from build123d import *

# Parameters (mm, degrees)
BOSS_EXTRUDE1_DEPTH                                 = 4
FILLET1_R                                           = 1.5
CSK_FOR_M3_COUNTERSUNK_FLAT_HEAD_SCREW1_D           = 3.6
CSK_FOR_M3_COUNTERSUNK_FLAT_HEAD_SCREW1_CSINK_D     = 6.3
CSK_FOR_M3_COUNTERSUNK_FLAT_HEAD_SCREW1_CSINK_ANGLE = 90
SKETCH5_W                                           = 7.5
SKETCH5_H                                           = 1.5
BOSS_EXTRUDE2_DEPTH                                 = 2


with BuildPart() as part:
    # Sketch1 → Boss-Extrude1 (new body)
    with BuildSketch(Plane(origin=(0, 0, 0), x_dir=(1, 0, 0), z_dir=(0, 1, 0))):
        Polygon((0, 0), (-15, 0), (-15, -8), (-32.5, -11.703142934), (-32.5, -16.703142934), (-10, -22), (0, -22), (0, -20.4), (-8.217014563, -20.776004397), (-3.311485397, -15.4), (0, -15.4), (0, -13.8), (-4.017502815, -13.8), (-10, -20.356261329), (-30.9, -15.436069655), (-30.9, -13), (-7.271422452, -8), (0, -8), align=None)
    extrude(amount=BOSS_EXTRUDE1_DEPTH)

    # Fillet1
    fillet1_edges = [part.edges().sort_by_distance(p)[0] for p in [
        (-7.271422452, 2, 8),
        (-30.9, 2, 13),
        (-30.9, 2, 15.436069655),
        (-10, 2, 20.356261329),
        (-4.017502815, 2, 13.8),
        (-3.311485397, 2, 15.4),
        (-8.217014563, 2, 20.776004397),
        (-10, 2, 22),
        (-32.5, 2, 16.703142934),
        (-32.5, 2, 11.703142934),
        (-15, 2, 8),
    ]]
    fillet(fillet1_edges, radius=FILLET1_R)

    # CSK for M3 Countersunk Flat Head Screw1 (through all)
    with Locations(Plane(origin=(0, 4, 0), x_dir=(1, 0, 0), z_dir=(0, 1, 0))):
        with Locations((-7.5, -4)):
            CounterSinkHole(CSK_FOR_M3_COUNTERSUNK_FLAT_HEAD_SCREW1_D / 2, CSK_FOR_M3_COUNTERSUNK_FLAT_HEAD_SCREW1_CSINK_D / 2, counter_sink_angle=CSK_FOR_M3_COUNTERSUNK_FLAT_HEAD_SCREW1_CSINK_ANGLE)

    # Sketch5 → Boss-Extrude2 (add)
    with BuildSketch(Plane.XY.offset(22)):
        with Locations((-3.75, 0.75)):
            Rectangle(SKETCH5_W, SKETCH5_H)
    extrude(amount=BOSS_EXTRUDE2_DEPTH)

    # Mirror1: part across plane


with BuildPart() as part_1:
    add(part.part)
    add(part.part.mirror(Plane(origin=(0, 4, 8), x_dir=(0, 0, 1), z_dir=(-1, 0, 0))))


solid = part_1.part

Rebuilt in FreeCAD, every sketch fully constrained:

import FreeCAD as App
import Part
import Sketcher
Q = App.Units.Quantity


def edges_at(feature, points):
    """Names of the edges that pass closest to the given points."""
    edges = feature.Shape.Edges
    near = lambda p: min(range(len(edges)), key=lambda i: edges[i].distToShape(Part.Vertex(*p))[0])
    return sorted({f"Edge{near(p) + 1}" for p in points})


def add_polygon(sketch, points):
    """Adds a closed chain of lines whose ends are joined by coincident constraints."""
    first, n = sketch.GeometryCount, len(points)
    for a, b in zip(points, points[1:] + points[:1]):
        sketch.addGeometry(Part.LineSegment(App.Vector(*a, 0), App.Vector(*b, 0)), False)
    for i in range(n):
        sketch.addConstraint(Sketcher.Constraint("Coincident", first + i, 2, first + (i + 1) % n, 1))

doc = App.newDocument("Part")
params = doc.addObject("Spreadsheet::Sheet", "Params")
for row, (alias, value) in enumerate([
    ("sketch1_width", "15 mm"),
    ("sketch1_width2", "10 mm"),
    ("sketch1_height", "8 mm"),
    ("sketch1_height2", "5 mm"),
    ("sketch1_height3", "1.6 mm"),
    ("pad1_length", "4 mm"),
    ("fillet_radius", "1.5 mm"),
    ("sketch2_diameter", "3.6 mm"),
    ("hole_diameter", "3.6 mm"),
    ("hole_csink_diameter", "6.3 mm"),
    ("sketch3_width", "7.5 mm"),
    ("sketch3_height", "1.5 mm"),
    ("pad2_length", "2 mm"),
], start=1):
    params.set(f"A{row}", alias)
    params.set(f"B{row}", "=" + value)
    params.setAlias(f"B{row}", alias)

body = doc.addObject("PartDesign::Body", "Body")

# Sketch on XZ plane
sketch1 = doc.addObject("Sketcher::SketchObject", "Sketch")
body.addObject(sketch1)
sketch1.AttachmentSupport = (doc.XZ_Plane, [""])
sketch1.MapMode = "FlatFace"
add_polygon(sketch1, [(0, 0), (-15, 0), (-15, 8), (-32.5, 11.703143), (-32.5, 16.703143), (-10, 22), (0, 22), (0, 20.4), (-8.217015, 20.776004), (-3.311485, 15.4), (0, 15.4), (0, 13.8), (-4.017503, 13.8), (-10, 20.356261), (-30.9, 15.43607), (-30.9, 13), (-7.271422, 8), (0, 8)])  # lines 0-17
sketch1.addConstraint([
    Sketcher.Constraint("Horizontal", 0),
    Sketcher.Constraint("Vertical", 1),
    Sketcher.Constraint("Vertical", 3),
    Sketcher.Constraint("Horizontal", 5),
    Sketcher.Constraint("Vertical", 6),
    Sketcher.Constraint("Horizontal", 9),
    Sketcher.Constraint("Vertical", 10),
    Sketcher.Constraint("Horizontal", 11),
    Sketcher.Constraint("Vertical", 14),
    Sketcher.Constraint("Horizontal", 16),
    Sketcher.Constraint("Vertical", 17),
    Sketcher.Constraint("Coincident", 17, 2, -1, 1),
    Sketcher.Constraint("PointOnObject", 5, 2, -2),
    Sketcher.Constraint("PointOnObject", 9, 2, -2),
    Sketcher.Constraint("Parallel", 8, 12),
    Sketcher.Constraint("Parallel", 4, 13),
    Sketcher.Constraint("Parallel", 2, 15),
    Sketcher.Constraint("Horizontal", 1, 2, 15, 2),
    Sketcher.Constraint("Vertical", 4, 2, 12, 2),
    Sketcher.Constraint("Equal", 6, 10),
    Sketcher.Constraint("DistanceX", 0, 2, 0, 1, 15.0),
    Sketcher.Constraint("DistanceX", 5, 1, 5, 2, 10.0),
    Sketcher.Constraint("DistanceY", 1, 1, 1, 2, 8.0),
    Sketcher.Constraint("DistanceY", 3, 1, 3, 2, 5.0),
    Sketcher.Constraint("DistanceY", 6, 2, 6, 1, 1.6),
    Sketcher.Constraint("DistanceY", -1, 1, 4, 2, 22.0),
    Sketcher.Constraint("DistanceY", -1, 1, 14, 2, 13.0),
    Sketcher.Constraint("DistanceY", 8, 2, 6, 2, 5.0),
    Sketcher.Constraint("DistanceX", 2, 2, -1, 1, 32.5),
    Sketcher.Constraint("DistanceX", 13, 2, -1, 1, 30.9),
    Sketcher.Constraint("Angle", 7, Q("177.380016 deg")),
    Sketcher.Constraint("Angle", 8, Q("-47.619984 deg")),
    Sketcher.Constraint("DistanceY", 14, 2, 14, 1, 2.43607),
    Sketcher.Constraint("Distance", 8, 7.27775),
    Sketcher.Constraint("Distance", 12, 8.875519),
])
sketch1.setExpression("Constraints[38]", "Params.sketch1_width")
sketch1.setExpression("Constraints[39]", "Params.sketch1_width2")
sketch1.setExpression("Constraints[40]", "Params.sketch1_height")
sketch1.setExpression("Constraints[41]", "Params.sketch1_height2")
sketch1.setExpression("Constraints[42]", "Params.sketch1_height3")
pad1 = doc.addObject("PartDesign::Pad", "Pad")
body.addObject(pad1)
pad1.Profile = sketch1
pad1.setExpression("Length", "Params.pad1_length")
pad1.Reversed = True
doc.recompute()

fillet = doc.addObject("PartDesign::Fillet", "Fillet")
body.addObject(fillet)
fillet.Base = (pad1, edges_at(pad1, [
    (-7.271, 2, 8),
    (-30.9, 2, 13),
    (-30.9, 2, 15.436),
    (-10, 2, 20.356),
    (-4.018, 2, 13.8),
    (-3.311, 2, 15.4),
    (-8.217, 2, 20.776),
    (-10, 2, 22),
    (-32.5, 2, 16.703),
    (-32.5, 2, 11.703),
    (-15, 2, 8),
]))
fillet.setExpression("Radius", "Params.fillet_radius")

# Sketch on XZ plane
sketch2 = doc.addObject("Sketcher::SketchObject", "Sketch001")
body.addObject(sketch2)
sketch2.AttachmentSupport = (doc.XZ_Plane, [""])
sketch2.MapMode = "FlatFace"
sketch2.AttachmentOffset = App.Placement(App.Vector(0, 0, -4), App.Rotation())
sketch2.addGeometry(Part.Circle(App.Vector(-7.5, 4, 0), App.Vector(0, 0, 1), 1.8), False)
sketch2.addConstraint([
    Sketcher.Constraint("Diameter", 0, 3.6),
    Sketcher.Constraint("DistanceY", -1, 1, 0, 3, 4.0),
    Sketcher.Constraint("DistanceX", 0, 3, -1, 1, 7.5),
])
sketch2.setExpression("Constraints[0]", "Params.sketch2_diameter")
doc.recompute()
hole = doc.addObject("PartDesign::Hole", "Hole")
body.addObject(hole)
hole.Profile = sketch2
hole.ThreadType = "None"
hole.setExpression("Diameter", "Params.hole_diameter")
hole.DepthType = "ThroughAll"
hole.HoleCutType = "Countersink"
hole.setExpression("HoleCutDiameter", "Params.hole_csink_diameter")
hole.HoleCutCountersinkAngle = 90
hole.Reversed = True

# Sketch on XY plane
sketch3 = doc.addObject("Sketcher::SketchObject", "Sketch002")
body.addObject(sketch3)
sketch3.AttachmentSupport = (doc.XY_Plane, [""])
sketch3.MapMode = "FlatFace"
sketch3.AttachmentOffset = App.Placement(App.Vector(0, 0, 22), App.Rotation())
add_polygon(sketch3, [(-7.5, 1.5), (-7.5, 0), (0, 0), (0, 1.5)])  # lines 0-3
sketch3.addConstraint([
    Sketcher.Constraint("Vertical", 0),
    Sketcher.Constraint("Horizontal", 1),
    Sketcher.Constraint("Vertical", 2),
    Sketcher.Constraint("Horizontal", 3),
    Sketcher.Constraint("Coincident", 1, 2, -1, 1),
    Sketcher.Constraint("DistanceX", 1, 1, 1, 2, 7.5),
    Sketcher.Constraint("DistanceY", 0, 2, 0, 1, 1.5),
])
sketch3.setExpression("Constraints[9]", "Params.sketch3_width")
sketch3.setExpression("Constraints[10]", "Params.sketch3_height")
pad2 = doc.addObject("PartDesign::Pad", "Pad001")
body.addObject(pad2)
pad2.Profile = sketch3
pad2.setExpression("Length", "Params.pad2_length")
body2 = doc.addObject("PartDesign::Body", "Body001")
doc.recompute()

body2.BaseFeature = body
doc.recompute()

mirroring = doc.addObject("Part::Mirroring", "Mirroring")
mirroring.Source = body
mirroring.Base = App.Vector(0, 4, 8)
mirroring.Normal = App.Vector(-1, 0, 0)
body3 = doc.addObject("PartDesign::Body", "Body002")
body3.BaseFeature = mirroring
boolean = doc.addObject("PartDesign::Boolean", "Boolean")
body2.addObject(boolean)
boolean.Type = "Fuse"
boolean.addObjects([body3])
doc.recompute()
mirroring.Visibility = False

doc.recompute()
